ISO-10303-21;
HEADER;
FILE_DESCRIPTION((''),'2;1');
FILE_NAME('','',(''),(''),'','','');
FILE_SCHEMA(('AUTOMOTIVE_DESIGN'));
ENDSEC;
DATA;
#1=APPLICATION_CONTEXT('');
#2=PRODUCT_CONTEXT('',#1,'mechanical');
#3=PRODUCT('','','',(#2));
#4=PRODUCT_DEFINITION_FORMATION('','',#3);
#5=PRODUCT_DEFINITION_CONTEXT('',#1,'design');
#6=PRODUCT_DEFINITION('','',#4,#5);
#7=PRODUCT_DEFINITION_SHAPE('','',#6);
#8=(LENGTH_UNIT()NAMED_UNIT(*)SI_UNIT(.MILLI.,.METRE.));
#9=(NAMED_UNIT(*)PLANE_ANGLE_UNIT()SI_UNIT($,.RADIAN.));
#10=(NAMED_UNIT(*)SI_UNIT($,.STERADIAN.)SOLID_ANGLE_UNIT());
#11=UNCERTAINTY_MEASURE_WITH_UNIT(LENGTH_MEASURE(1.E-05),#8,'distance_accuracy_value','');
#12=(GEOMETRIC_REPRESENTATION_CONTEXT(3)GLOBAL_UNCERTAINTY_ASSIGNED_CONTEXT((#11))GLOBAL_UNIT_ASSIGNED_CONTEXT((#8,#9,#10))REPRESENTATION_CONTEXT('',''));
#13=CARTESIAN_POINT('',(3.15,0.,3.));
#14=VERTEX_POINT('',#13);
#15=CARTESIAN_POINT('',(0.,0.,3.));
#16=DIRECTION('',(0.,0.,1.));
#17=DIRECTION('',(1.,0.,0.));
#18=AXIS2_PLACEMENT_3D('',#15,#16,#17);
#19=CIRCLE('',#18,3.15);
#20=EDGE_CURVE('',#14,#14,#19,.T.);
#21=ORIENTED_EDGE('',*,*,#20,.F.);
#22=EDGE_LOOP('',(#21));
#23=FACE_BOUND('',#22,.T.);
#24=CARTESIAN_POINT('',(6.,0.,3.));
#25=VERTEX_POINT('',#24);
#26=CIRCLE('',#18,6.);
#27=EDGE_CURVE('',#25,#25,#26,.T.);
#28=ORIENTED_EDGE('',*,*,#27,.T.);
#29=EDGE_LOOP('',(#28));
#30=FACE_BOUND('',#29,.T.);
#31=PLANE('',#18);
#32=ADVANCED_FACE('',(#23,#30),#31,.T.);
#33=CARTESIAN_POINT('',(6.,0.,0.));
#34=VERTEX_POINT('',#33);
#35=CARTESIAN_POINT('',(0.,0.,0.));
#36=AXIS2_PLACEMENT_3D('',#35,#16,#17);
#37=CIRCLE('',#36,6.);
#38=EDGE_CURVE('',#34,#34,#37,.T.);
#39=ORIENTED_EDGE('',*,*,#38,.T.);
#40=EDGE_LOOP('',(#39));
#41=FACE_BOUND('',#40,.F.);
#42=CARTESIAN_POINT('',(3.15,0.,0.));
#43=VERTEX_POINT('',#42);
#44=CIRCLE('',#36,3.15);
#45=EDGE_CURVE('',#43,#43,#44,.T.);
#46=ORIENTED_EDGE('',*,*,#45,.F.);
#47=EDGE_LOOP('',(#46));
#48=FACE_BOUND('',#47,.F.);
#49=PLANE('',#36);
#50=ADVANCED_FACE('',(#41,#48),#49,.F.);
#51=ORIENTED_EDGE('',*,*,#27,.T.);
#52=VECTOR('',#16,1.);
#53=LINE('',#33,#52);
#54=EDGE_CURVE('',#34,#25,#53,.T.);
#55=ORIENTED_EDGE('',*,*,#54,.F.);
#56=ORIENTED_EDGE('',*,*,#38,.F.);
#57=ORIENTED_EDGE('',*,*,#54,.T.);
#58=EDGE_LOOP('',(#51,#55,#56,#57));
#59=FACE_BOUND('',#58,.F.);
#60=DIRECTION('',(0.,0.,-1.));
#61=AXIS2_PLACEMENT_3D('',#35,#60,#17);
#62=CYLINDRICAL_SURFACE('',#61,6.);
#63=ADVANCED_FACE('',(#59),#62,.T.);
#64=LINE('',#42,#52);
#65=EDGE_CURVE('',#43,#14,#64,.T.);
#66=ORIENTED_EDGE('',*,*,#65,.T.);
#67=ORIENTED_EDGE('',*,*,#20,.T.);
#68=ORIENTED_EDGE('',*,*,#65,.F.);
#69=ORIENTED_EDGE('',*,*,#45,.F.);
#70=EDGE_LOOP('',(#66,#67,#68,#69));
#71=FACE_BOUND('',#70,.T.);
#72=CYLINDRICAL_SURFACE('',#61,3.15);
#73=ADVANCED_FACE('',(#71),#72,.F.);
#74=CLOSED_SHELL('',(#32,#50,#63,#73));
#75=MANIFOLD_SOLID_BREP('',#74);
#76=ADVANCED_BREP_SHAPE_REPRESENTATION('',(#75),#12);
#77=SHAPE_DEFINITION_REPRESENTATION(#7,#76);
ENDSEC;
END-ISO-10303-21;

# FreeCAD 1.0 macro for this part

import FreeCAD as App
import Part
import Sketcher
from FreeCAD import Vector
Q = App.Units.Quantity

doc = App.newDocument("Part")
params = doc.addObject("Spreadsheet::Sheet", "Params")
for row, (alias, value) in enumerate([
    ("sketch1_diameter", "12 mm"),
    ("sketch1_diameter2", "6.3 mm"),
    ("pad1_length", "3 mm"),
], start=1):
    params.set(f"A{row}", alias)
    params.set(f"B{row}", "=" + value)
    params.setAlias(f"B{row}", alias)

body = doc.addObject("PartDesign::Body", "Body")

sketch1 = doc.addObject("Sketcher::SketchObject", "Sketch")
body.addObject(sketch1)
sketch1.AttachmentSupport = (doc.XY_Plane, [""])
sketch1.MapMode = "FlatFace"
sketch1.addGeometry(Part.Circle(Vector(0, 0, 0), Vector(0, 0, 1), 6), False)
sketch1.addGeometry(Part.Circle(Vector(0, 0, 0), Vector(0, 0, 1), 3.1), False)
sketch1.addConstraint(Sketcher.Constraint("Coincident", 0, 3, -1, 1))
sketch1.addConstraint(Sketcher.Constraint("Coincident", 1, 3, -1, 1))
sketch1.addConstraint(Sketcher.Constraint("Diameter", 0, Q("12 mm")))
sketch1.addConstraint(Sketcher.Constraint("Diameter", 1, Q("6.3 mm")))
sketch1.setExpression("Constraints[2]", "Params.sketch1_diameter")
sketch1.setExpression("Constraints[3]", "Params.sketch1_diameter2")
pad1 = doc.addObject("PartDesign::Pad", "Pad")
body.addObject(pad1)
pad1.Profile = sketch1
pad1.setExpression("Length", "Params.pad1_length")

doc.recompute()
